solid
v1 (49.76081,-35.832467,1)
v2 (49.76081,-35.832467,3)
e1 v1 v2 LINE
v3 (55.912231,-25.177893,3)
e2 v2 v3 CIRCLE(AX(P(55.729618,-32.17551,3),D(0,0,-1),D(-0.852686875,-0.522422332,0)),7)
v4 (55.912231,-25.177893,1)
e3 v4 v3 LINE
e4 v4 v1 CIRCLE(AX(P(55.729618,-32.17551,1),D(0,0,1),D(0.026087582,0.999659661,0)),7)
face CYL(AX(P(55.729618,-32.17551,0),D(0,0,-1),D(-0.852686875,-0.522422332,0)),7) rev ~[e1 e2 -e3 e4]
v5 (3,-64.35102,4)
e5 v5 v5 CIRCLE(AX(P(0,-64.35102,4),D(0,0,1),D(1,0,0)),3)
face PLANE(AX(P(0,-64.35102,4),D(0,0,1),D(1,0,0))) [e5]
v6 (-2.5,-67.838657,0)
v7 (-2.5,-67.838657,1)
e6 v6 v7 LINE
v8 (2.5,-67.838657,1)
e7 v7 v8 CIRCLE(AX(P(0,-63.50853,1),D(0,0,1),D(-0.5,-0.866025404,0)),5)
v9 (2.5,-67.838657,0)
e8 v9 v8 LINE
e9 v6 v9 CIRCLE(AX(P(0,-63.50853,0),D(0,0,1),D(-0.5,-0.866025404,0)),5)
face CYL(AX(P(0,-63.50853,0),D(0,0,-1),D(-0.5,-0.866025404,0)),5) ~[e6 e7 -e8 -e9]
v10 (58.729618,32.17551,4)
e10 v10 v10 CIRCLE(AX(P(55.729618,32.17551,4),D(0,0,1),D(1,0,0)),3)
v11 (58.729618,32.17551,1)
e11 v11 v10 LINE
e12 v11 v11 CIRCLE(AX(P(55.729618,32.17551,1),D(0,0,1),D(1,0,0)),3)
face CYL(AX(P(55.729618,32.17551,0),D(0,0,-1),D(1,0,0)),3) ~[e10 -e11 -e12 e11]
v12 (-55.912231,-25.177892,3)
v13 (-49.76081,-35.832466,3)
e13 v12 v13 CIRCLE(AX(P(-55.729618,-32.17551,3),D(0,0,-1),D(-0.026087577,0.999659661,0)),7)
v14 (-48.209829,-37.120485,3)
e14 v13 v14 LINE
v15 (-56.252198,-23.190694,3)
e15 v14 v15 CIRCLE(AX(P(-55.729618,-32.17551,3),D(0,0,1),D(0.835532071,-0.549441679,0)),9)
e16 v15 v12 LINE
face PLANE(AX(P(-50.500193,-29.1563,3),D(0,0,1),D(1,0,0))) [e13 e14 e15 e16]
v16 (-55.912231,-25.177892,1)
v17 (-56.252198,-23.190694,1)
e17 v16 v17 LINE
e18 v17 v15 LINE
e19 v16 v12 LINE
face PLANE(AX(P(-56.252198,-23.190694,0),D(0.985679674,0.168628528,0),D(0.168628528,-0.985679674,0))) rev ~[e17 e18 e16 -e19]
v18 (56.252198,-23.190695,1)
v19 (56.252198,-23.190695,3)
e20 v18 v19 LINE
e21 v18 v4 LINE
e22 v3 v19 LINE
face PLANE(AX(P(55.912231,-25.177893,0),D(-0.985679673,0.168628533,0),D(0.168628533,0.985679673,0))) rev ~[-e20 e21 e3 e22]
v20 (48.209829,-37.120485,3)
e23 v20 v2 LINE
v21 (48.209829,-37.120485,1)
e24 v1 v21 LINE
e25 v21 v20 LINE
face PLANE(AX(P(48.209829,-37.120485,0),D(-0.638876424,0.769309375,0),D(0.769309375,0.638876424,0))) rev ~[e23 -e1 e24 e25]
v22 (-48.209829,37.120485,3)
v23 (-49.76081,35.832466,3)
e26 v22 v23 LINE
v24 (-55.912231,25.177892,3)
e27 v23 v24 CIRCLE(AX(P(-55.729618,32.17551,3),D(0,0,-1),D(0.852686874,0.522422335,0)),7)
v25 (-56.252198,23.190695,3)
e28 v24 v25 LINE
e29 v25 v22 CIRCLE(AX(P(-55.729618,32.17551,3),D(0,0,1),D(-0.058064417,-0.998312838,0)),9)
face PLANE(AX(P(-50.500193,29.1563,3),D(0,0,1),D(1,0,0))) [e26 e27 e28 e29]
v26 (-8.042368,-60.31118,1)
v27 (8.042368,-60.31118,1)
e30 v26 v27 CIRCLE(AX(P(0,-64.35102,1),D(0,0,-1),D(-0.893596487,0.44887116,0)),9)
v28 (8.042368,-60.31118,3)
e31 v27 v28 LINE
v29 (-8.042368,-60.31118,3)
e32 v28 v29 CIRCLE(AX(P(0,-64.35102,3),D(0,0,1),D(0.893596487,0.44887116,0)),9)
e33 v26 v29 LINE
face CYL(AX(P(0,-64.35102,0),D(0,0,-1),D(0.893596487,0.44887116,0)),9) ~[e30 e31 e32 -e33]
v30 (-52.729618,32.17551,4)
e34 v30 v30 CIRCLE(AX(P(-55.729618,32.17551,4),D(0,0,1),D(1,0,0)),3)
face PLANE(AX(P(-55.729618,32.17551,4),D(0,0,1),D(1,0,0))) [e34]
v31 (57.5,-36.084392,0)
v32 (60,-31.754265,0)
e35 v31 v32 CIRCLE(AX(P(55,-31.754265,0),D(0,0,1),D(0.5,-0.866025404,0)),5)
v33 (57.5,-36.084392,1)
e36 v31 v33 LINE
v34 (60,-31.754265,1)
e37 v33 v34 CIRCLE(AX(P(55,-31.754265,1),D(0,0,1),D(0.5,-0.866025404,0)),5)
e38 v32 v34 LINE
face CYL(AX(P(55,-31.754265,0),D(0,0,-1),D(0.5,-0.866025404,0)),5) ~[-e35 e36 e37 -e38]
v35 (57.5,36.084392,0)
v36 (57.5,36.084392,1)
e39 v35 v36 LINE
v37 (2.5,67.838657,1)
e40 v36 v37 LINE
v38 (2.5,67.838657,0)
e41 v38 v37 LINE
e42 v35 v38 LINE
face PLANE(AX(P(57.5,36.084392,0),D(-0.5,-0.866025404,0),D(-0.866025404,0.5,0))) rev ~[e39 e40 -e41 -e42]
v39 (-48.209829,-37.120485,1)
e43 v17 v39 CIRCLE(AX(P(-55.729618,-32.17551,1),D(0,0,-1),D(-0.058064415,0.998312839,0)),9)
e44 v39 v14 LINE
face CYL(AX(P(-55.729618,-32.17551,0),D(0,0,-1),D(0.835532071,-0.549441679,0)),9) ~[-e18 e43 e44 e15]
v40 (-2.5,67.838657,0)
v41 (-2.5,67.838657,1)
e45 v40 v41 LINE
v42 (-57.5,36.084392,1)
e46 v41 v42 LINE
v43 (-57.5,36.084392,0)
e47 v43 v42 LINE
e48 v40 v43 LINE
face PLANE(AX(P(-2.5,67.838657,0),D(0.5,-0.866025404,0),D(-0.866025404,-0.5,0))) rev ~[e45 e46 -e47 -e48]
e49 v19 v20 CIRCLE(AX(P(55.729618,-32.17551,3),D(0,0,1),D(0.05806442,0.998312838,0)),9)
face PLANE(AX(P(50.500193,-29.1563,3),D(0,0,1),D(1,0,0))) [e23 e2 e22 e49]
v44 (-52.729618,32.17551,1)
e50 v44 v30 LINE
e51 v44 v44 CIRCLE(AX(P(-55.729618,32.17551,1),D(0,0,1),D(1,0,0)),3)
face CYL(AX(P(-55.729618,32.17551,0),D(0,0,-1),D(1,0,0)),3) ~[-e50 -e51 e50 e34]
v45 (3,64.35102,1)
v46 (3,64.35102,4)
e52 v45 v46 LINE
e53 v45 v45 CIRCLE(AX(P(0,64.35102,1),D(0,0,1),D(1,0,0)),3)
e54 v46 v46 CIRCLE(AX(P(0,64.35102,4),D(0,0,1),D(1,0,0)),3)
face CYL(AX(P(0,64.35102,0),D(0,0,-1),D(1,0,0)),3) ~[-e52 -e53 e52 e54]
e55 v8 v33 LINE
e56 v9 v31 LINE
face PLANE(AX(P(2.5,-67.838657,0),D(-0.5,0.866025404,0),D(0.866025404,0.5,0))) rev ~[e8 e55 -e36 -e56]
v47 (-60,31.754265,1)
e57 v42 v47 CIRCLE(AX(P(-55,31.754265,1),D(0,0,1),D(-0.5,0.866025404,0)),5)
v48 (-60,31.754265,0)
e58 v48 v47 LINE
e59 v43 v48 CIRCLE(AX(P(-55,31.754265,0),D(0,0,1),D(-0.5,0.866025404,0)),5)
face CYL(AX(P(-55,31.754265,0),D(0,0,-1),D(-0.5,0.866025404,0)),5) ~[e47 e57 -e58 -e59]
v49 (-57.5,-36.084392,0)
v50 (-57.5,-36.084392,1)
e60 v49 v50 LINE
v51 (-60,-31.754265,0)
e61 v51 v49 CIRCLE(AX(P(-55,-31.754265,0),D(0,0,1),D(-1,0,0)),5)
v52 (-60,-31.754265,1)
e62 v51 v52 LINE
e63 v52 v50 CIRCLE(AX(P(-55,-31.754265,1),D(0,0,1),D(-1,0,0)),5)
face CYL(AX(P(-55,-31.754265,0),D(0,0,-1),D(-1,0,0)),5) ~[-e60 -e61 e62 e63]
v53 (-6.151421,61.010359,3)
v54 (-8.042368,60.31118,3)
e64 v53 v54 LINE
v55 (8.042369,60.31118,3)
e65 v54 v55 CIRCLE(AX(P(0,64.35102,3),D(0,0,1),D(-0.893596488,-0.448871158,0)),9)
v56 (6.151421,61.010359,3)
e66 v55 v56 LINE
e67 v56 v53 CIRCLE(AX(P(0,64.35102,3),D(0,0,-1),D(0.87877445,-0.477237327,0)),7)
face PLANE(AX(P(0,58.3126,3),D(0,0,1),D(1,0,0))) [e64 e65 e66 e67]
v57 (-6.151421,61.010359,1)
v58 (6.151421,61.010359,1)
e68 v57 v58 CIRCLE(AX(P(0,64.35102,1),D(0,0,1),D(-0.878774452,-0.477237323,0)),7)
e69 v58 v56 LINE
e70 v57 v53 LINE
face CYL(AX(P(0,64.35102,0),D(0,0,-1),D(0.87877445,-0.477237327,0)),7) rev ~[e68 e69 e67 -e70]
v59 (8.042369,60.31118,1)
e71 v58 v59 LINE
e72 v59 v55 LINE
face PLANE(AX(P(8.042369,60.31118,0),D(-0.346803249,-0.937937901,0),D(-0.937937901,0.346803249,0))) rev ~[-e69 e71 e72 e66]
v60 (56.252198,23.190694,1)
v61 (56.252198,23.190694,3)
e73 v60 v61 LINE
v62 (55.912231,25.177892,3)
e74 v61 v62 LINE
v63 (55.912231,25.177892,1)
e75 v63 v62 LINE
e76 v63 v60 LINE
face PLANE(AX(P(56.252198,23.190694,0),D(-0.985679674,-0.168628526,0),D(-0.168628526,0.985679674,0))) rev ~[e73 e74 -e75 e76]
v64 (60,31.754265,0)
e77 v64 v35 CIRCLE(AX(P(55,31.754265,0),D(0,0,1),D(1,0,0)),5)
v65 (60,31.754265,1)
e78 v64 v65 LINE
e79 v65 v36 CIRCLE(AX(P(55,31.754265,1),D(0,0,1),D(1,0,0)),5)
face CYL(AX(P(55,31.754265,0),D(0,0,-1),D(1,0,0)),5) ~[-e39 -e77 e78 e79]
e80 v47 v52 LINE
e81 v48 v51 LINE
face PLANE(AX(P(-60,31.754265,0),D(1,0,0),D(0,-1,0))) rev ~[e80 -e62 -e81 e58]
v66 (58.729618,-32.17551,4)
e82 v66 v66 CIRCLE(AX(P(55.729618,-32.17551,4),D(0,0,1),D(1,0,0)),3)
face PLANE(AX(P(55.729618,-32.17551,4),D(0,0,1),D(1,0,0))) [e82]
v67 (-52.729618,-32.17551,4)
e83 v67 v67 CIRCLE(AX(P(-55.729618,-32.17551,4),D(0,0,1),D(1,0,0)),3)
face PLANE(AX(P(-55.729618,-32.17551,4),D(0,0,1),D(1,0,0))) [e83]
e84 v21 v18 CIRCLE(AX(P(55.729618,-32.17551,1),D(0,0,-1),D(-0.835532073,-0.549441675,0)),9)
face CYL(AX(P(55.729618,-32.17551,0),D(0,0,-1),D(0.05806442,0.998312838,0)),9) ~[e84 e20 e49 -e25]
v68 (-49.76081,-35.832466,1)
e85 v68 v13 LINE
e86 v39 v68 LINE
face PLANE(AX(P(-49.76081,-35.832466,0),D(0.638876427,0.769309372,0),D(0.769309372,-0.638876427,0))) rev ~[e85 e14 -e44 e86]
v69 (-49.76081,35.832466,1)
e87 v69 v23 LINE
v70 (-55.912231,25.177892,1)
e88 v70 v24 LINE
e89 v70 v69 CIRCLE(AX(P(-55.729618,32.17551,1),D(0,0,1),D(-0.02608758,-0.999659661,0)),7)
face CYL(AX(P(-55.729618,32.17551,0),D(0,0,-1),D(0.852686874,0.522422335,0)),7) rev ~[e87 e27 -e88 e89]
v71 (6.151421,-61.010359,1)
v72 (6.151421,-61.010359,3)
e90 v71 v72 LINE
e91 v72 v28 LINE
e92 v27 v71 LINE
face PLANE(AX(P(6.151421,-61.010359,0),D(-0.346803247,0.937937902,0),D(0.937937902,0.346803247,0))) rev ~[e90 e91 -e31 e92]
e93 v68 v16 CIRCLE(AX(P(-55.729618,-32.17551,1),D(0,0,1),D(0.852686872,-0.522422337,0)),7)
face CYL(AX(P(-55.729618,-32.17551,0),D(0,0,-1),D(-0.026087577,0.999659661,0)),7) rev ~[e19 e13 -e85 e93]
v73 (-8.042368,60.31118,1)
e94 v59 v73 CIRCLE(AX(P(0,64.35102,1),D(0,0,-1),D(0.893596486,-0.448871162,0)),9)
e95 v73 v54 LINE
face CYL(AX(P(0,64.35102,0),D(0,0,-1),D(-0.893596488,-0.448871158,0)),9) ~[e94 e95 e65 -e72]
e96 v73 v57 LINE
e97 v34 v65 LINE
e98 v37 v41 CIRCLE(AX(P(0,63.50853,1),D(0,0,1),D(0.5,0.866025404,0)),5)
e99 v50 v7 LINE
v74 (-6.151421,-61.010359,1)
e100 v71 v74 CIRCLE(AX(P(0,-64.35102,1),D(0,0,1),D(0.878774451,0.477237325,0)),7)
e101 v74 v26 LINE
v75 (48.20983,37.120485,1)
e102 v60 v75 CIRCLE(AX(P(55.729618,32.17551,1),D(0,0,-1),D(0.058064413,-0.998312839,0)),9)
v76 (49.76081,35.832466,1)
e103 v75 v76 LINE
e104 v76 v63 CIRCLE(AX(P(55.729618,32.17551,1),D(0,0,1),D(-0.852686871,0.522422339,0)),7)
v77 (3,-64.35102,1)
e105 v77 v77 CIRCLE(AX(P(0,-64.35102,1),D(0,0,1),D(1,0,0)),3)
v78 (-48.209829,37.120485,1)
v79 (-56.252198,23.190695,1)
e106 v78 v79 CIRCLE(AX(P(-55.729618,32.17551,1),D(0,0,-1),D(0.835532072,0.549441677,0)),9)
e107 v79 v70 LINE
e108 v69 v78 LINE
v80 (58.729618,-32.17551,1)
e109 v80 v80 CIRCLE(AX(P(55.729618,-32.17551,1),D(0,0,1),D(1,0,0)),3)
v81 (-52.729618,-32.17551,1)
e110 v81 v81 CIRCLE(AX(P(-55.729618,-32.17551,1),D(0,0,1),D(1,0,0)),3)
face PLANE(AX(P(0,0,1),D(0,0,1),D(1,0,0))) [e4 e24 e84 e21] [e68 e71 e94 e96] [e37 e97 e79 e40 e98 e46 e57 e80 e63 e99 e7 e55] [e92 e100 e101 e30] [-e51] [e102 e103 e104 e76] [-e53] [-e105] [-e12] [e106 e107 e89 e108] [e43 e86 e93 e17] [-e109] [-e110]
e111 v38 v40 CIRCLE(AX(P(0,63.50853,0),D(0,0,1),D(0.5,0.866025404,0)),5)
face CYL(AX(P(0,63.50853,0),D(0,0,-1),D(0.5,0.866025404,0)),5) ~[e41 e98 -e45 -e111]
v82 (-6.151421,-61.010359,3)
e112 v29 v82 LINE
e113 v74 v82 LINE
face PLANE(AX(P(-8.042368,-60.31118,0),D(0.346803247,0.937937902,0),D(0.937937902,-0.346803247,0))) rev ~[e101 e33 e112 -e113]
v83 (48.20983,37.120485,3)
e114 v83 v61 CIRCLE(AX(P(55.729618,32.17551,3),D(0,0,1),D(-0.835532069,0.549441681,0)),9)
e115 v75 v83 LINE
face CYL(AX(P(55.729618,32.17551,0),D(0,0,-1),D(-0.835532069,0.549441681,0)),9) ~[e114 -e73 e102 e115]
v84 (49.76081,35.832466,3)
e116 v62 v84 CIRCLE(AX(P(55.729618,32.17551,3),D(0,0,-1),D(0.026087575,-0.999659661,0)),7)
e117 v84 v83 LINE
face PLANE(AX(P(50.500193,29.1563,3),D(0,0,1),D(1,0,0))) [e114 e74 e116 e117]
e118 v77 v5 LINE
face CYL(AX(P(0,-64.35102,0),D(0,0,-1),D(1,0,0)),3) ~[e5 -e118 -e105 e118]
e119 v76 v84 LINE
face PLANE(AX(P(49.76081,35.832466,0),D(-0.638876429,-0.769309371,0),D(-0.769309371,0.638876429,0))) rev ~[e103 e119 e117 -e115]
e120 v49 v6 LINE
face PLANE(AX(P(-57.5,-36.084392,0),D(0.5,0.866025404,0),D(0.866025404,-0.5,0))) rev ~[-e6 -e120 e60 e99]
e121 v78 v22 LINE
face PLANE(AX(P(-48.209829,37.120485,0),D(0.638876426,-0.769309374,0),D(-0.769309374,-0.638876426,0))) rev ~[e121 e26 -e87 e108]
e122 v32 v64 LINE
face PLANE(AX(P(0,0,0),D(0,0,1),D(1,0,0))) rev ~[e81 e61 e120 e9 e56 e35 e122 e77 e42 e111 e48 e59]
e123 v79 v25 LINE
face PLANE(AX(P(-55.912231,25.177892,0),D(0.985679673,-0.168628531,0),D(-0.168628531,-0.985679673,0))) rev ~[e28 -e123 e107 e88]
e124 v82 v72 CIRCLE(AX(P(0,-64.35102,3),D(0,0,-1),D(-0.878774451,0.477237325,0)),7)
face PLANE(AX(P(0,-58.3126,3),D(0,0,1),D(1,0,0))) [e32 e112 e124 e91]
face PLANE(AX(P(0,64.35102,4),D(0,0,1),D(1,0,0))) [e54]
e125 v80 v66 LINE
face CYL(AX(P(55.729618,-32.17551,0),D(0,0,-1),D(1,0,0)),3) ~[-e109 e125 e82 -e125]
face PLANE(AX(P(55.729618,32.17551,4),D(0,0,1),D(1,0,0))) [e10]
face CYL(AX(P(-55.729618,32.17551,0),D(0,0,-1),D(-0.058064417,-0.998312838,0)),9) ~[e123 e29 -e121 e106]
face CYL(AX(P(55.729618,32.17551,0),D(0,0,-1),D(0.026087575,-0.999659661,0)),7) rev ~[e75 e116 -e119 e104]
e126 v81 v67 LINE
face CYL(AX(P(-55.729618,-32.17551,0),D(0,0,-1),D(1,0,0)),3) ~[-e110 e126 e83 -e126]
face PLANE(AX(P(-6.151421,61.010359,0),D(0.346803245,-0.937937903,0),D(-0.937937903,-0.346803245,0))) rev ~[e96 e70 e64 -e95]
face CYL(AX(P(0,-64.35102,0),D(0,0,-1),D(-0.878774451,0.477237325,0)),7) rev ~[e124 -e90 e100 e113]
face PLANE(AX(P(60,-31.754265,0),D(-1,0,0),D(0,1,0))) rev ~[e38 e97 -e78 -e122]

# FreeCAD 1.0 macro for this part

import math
import FreeCAD as App
import Part
import Sketcher
from FreeCAD import Vector
Q = App.Units.Quantity

doc = App.newDocument("Part")
body = doc.addObject("PartDesign::Body", "Body")

# Sketch on XY plane
sketch1 = body.newObject("Sketcher::SketchObject", "Sketch")
sketch1.AttachmentSupport = (doc.getObject("XY_Plane"), [""])
sketch1.MapMode = "FlatFace"
sketch1.addGeometry(Part.LineSegment(Vector(60, -31.754265, 0), Vector(60, 31.754265, 0)), False)
sketch1.addGeometry(Part.ArcOfCircle(Part.Circle(Vector(55, 31.754265, 0), Vector(0, 0, 1), 5), math.radians(0), math.radians(60)), False)
sketch1.addGeometry(Part.LineSegment(Vector(57.5, 36.084392, 0), Vector(2.5, 67.838657, 0)), False)
sketch1.addGeometry(Part.ArcOfCircle(Part.Circle(Vector(0, 63.50853, 0), Vector(0, 0, 1), 5), math.radians(60), math.radians(120)), False)
sketch1.addGeometry(Part.LineSegment(Vector(-2.5, 67.838657, 0), Vector(-57.5, 36.084392, 0)), False)
sketch1.addGeometry(Part.ArcOfCircle(Part.Circle(Vector(-55, 31.754265, 0), Vector(0, 0, 1), 5), math.radians(120), math.radians(180)), False)
sketch1.addGeometry(Part.LineSegment(Vector(-60, 31.754265, 0), Vector(-60, -31.754265, 0)), False)
sketch1.addGeometry(Part.ArcOfCircle(Part.Circle(Vector(-55, -31.754265, 0), Vector(0, 0, 1), 5), math.radians(180), math.radians(240)), False)
sketch1.addGeometry(Part.LineSegment(Vector(-57.5, -36.084392, 0), Vector(-2.5, -67.838657, 0)), False)
sketch1.addGeometry(Part.ArcOfCircle(Part.Circle(Vector(0, -63.50853, 0), Vector(0, 0, 1), 5), math.radians(-120), math.radians(-60)), False)
sketch1.addGeometry(Part.LineSegment(Vector(2.5, -67.838657, 0), Vector(57.5, -36.084392, 0)), False)
sketch1.addGeometry(Part.ArcOfCircle(Part.Circle(Vector(55, -31.754265, 0), Vector(0, 0, 1), 5), math.radians(-60), math.radians(0)), False)
sketch1.addGeometry(Part.Circle(Vector(0, -64.35102, 0), Vector(0, 0, 1), 3), False)
sketch1.addGeometry(Part.ArcOfCircle(Part.Circle(Vector(0, -64.35102, 0), Vector(0, 0, 1), 9), math.radians(26.671282), math.radians(153.328718)), False)
sketch1.addGeometry(Part.LineSegment(Vector(8.042368, -60.31118, 0), Vector(6.151421, -61.010359, 0)), False)
sketch1.addGeometry(Part.ArcOfCircle(Part.Circle(Vector(0, -64.35102, 0), Vector(0, 0, 1), 7), math.radians(28.505122), math.radians(151.494878)), False)
sketch1.addGeometry(Part.LineSegment(Vector(-6.151421, -61.010359, 0), Vector(-8.042368, -60.31118, 0)), False)
sketch1.addGeometry(Part.Circle(Vector(-55.729618, -32.17551, 0), Vector(0, 0, 1), 3), False)
sketch1.addGeometry(Part.ArcOfCircle(Part.Circle(Vector(-55.729618, -32.17551, 0), Vector(0, 0, 1), 9), math.radians(-33.328718), math.radians(93.328718)), False)
sketch1.addGeometry(Part.LineSegment(Vector(-48.209829, -37.120485, 0), Vector(-49.76081, -35.832466, 0)), False)
sketch1.addGeometry(Part.ArcOfCircle(Part.Circle(Vector(-55.729618, -32.17551, 0), Vector(0, 0, 1), 7), math.radians(-31.494878), math.radians(91.494878)), False)
sketch1.addGeometry(Part.LineSegment(Vector(-55.912231, -25.177892, 0), Vector(-56.252198, -23.190694, 0)), False)
sketch1.addGeometry(Part.ArcOfCircle(Part.Circle(Vector(55.729618, -32.17551, 0), Vector(0, 0, 1), 9), math.radians(86.671282), math.radians(213.328718)), False)
sketch1.addGeometry(Part.LineSegment(Vector(56.252198, -23.190695, 0), Vector(55.912231, -25.177893, 0)), False)
sketch1.addGeometry(Part.ArcOfCircle(Part.Circle(Vector(55.729618, -32.17551, 0), Vector(0, 0, 1), 7), math.radians(88.505122), math.radians(211.494877)), False)
sketch1.addGeometry(Part.LineSegment(Vector(49.76081, -35.832467, 0), Vector(48.209829, -37.120485, 0)), False)
sketch1.addGeometry(Part.Circle(Vector(55.729618, -32.17551, 0), Vector(0, 0, 1), 3), False)
sketch1.addGeometry(Part.Circle(Vector(-55.729618, 32.17551, 0), Vector(0, 0, 1), 3), False)
sketch1.addGeometry(Part.ArcOfCircle(Part.Circle(Vector(-55.729618, 32.17551, 0), Vector(0, 0, 1), 9), math.radians(-93.328718), math.radians(33.328718)), False)
sketch1.addGeometry(Part.LineSegment(Vector(-56.252198, 23.190695, 0), Vector(-55.912231, 25.177892, 0)), False)
sketch1.addGeometry(Part.ArcOfCircle(Part.Circle(Vector(-55.729618, 32.17551, 0), Vector(0, 0, 1), 7), math.radians(-91.494878), math.radians(31.494878)), False)
sketch1.addGeometry(Part.LineSegment(Vector(-49.76081, 35.832466, 0), Vector(-48.209829, 37.120485, 0)), False)
sketch1.addGeometry(Part.ArcOfCircle(Part.Circle(Vector(55.729618, 32.17551, 0), Vector(0, 0, 1), 9), math.radians(146.671282), math.radians(273.328718)), False)
sketch1.addGeometry(Part.LineSegment(Vector(48.20983, 37.120485, 0), Vector(49.76081, 35.832466, 0)), False)
sketch1.addGeometry(Part.ArcOfCircle(Part.Circle(Vector(55.729618, 32.17551, 0), Vector(0, 0, 1), 7), math.radians(148.505122), math.radians(271.494878)), False)
sketch1.addGeometry(Part.LineSegment(Vector(55.912231, 25.177892, 0), Vector(56.252198, 23.190694, 0)), False)
sketch1.addGeometry(Part.Circle(Vector(55.729618, 32.17551, 0), Vector(0, 0, 1), 3), False)
sketch1.addGeometry(Part.ArcOfCircle(Part.Circle(Vector(0, 64.35102, 0), Vector(0, 0, 1), 9), math.radians(-153.328718), math.radians(-26.671282)), False)
sketch1.addGeometry(Part.LineSegment(Vector(-8.042368, 60.31118, 0), Vector(-6.151421, 61.010359, 0)), False)
sketch1.addGeometry(Part.ArcOfCircle(Part.Circle(Vector(0, 64.35102, 0), Vector(0, 0, 1), 7), math.radians(-151.494878), math.radians(-28.505122)), False)
sketch1.addGeometry(Part.LineSegment(Vector(6.151421, 61.010359, 0), Vector(8.042369, 60.31118, 0)), False)
sketch1.addGeometry(Part.Circle(Vector(0, 64.35102, 0), Vector(0, 0, 1), 3), False)
sketch1.addConstraint(Sketcher.Constraint("Tangent", 0, 2, 1, 1))
sketch1.addConstraint(Sketcher.Constraint("Tangent", 1, 2, 2, 1))
sketch1.addConstraint(Sketcher.Constraint("Tangent", 2, 2, 3, 1))
sketch1.addConstraint(Sketcher.Constraint("Tangent", 3, 2, 4, 1))
sketch1.addConstraint(Sketcher.Constraint("Tangent", 4, 2, 5, 1))
sketch1.addConstraint(Sketcher.Constraint("Tangent", 5, 2, 6, 1))
sketch1.addConstraint(Sketcher.Constraint("Tangent", 6, 2, 7, 1))
sketch1.addConstraint(Sketcher.Constraint("Tangent", 7, 2, 8, 1))
sketch1.addConstraint(Sketcher.Constraint("Tangent", 8, 2, 9, 1))
sketch1.addConstraint(Sketcher.Constraint("Tangent", 9, 2, 10, 1))
sketch1.addConstraint(Sketcher.Constraint("Tangent", 10, 2, 11, 1))
sketch1.addConstraint(Sketcher.Constraint("Tangent", 11, 2, 0, 1))
sketch1.addConstraint(Sketcher.Constraint("Coincident", 13, 1, 14, 1))
sketch1.addConstraint(Sketcher.Constraint("Coincident", 14, 2, 15, 1))
sketch1.addConstraint(Sketcher.Constraint("Coincident", 15, 2, 16, 1))
sketch1.addConstraint(Sketcher.Constraint("Coincident", 16, 2, 13, 2))
sketch1.addConstraint(Sketcher.Constraint("Coincident", 18, 1, 19, 1))
sketch1.addConstraint(Sketcher.Constraint("Coincident", 19, 2, 20, 1))
sketch1.addConstraint(Sketcher.Constraint("Coincident", 20, 2, 21, 1))
sketch1.addConstraint(Sketcher.Constraint("Coincident", 21, 2, 18, 2))
sketch1.addConstraint(Sketcher.Constraint("Coincident", 22, 1, 23, 1))
sketch1.addConstraint(Sketcher.Constraint("Coincident", 23, 2, 24, 1))
sketch1.addConstraint(Sketcher.Constraint("Coincident", 24, 2, 25, 1))
sketch1.addConstraint(Sketcher.Constraint("Coincident", 25, 2, 22, 2))
sketch1.addConstraint(Sketcher.Constraint("Coincident", 28, 1, 29, 1))
sketch1.addConstraint(Sketcher.Constraint("Coincident", 29, 2, 30, 1))
sketch1.addConstraint(Sketcher.Constraint("Coincident", 30, 2, 31, 1))
sketch1.addConstraint(Sketcher.Constraint("Coincident", 31, 2, 28, 2))
sketch1.addConstraint(Sketcher.Constraint("Coincident", 32, 1, 33, 1))
sketch1.addConstraint(Sketcher.Constraint("Coincident", 33, 2, 34, 1))
sketch1.addConstraint(Sketcher.Constraint("Coincident", 34, 2, 35, 1))
sketch1.addConstraint(Sketcher.Constraint("Coincident", 35, 2, 32, 2))
sketch1.addConstraint(Sketcher.Constraint("Coincident", 37, 1, 38, 1))
sketch1.addConstraint(Sketcher.Constraint("Coincident", 38, 2, 39, 1))
sketch1.addConstraint(Sketcher.Constraint("Coincident", 39, 2, 40, 1))
sketch1.addConstraint(Sketcher.Constraint("Coincident", 40, 2, 37, 2))
sketch1.addConstraint(Sketcher.Constraint("Vertical", 0))
sketch1.addConstraint(Sketcher.Constraint("Vertical", 6))
sketch1.addConstraint(Sketcher.Constraint("Coincident", 13, 3, 12, 3))
sketch1.addConstraint(Sketcher.Constraint("Coincident", 15, 3, 12, 3))
sketch1.addConstraint(Sketcher.Constraint("Coincident", 18, 3, 17, 3))
sketch1.addConstraint(Sketcher.Constraint("Coincident", 20, 3, 17, 3))
sketch1.addConstraint(Sketcher.Constraint("Coincident", 24, 3, 22, 3))
sketch1.addConstraint(Sketcher.Constraint("Coincident", 26, 3, 22, 3))
sketch1.addConstraint(Sketcher.Constraint("Coincident", 28, 3, 27, 3))
sketch1.addConstraint(Sketcher.Constraint("Coincident", 30, 3, 27, 3))
sketch1.addConstraint(Sketcher.Constraint("Coincident", 34, 3, 32, 3))
sketch1.addConstraint(Sketcher.Constraint("Coincident", 36, 3, 32, 3))
sketch1.addConstraint(Sketcher.Constraint("Coincident", 39, 3, 37, 3))
sketch1.addConstraint(Sketcher.Constraint("Coincident", 41, 3, 37, 3))
sketch1.addConstraint(Sketcher.Constraint("Equal", 1, 3))
sketch1.addConstraint(Sketcher.Constraint("Equal", 3, 5))
sketch1.addConstraint(Sketcher.Constraint("Equal", 5, 7))
sketch1.addConstraint(Sketcher.Constraint("Equal", 7, 9))
sketch1.addConstraint(Sketcher.Constraint("Equal", 9, 11))
sketch1.addConstraint(Sketcher.Constraint("Equal", 12, 17))
sketch1.addConstraint(Sketcher.Constraint("Equal", 13, 18))
sketch1.addConstraint(Sketcher.Constraint("Equal", 15, 20))
sketch1.addConstraint(Sketcher.Constraint("Equal", 18, 22))
sketch1.addConstraint(Sketcher.Constraint("Equal", 20, 24))
sketch1.addConstraint(Sketcher.Constraint("Equal", 17, 26))
sketch1.addConstraint(Sketcher.Constraint("Equal", 26, 27))
sketch1.addConstraint(Sketcher.Constraint("Equal", 22, 28))
sketch1.addConstraint(Sketcher.Constraint("Equal", 24, 30))
sketch1.addConstraint(Sketcher.Constraint("Equal", 28, 32))
sketch1.addConstraint(Sketcher.Constraint("Equal", 30, 34))
sketch1.addConstraint(Sketcher.Constraint("Equal", 27, 36))
sketch1.addConstraint(Sketcher.Constraint("Equal", 32, 37))
sketch1.addConstraint(Sketcher.Constraint("Equal", 34, 39))
sketch1.addConstraint(Sketcher.Constraint("Equal", 36, 41))
sketch1.addConstraint(Sketcher.Constraint("Symmetric", 1, 3, 7, 3, -1, 1))
sketch1.addConstraint(Sketcher.Constraint("Symmetric", 3, 3, 9, 3, -1, 1))
sketch1.addConstraint(Sketcher.Constraint("Symmetric", 22, 3, 27, 3, -1, 1))
sketch1.addConstraint(Sketcher.Constraint("Symmetric", 17, 3, 32, 3, -1, 1))
sketch1.addConstraint(Sketcher.Constraint("Symmetric", 12, 3, 37, 3, -1, 1))
sketch1.addConstraint(Sketcher.Constraint("Symmetric", 17, 3, 22, 3, -2))
sketch1.addConstraint(Sketcher.Constraint("Symmetric", 2, 2, 3, 2, -2))
sketch1.addConstraint(Sketcher.Constraint("Symmetric", 14, 2, 15, 2, -2))
sketch1.addConstraint(Sketcher.Constraint("Parallel", 4, 10))
sketch1.addConstraint(Sketcher.Constraint("Parallel", 23, 29))
sketch1.addConstraint(Sketcher.Constraint("Parallel", 25, 31))
sketch1.addConstraint(Sketcher.Constraint("Parallel", 19, 33))
sketch1.addConstraint(Sketcher.Constraint("Parallel", 21, 35))
sketch1.addConstraint(Sketcher.Constraint("Parallel", 14, 38))
sketch1.addConstraint(Sketcher.Constraint("Parallel", 16, 40))
sketch1.addConstraint(Sketcher.Constraint("Horizontal", 13, 1, 16, 2))
sketch1.addConstraint(Sketcher.Constraint("Horizontal", 21, 2, 22, 1))
sketch1.addConstraint(Sketcher.Constraint("Horizontal", 20, 2, 23, 2))
sketch1.addConstraint(Sketcher.Constraint("Horizontal", 19, 2, 24, 2))
sketch1.addConstraint(Sketcher.Constraint("Horizontal", 18, 1, 25, 2))
sketch1.addConstraint(Sketcher.Constraint("Horizontal", 31, 2, 32, 1))
sketch1.addConstraint(Sketcher.Constraint("Horizontal", 29, 2, 34, 2))
sketch1.addConstraint(Sketcher.Constraint("Horizontal", 38, 2, 39, 2))
sketch1.addConstraint(Sketcher.Constraint("Vertical", 21, 2, 28, 1))
sketch1.addConstraint(Sketcher.Constraint("Vertical", 19, 2, 30, 2))
sketch1.addConstraint(Sketcher.Constraint("Vertical", 16, 2, 37, 1))
sketch1.addConstraint(Sketcher.Constraint("Equal", 16, 19))
sketch1.addConstraint(Sketcher.Constraint("Equal", 19, 21))
sketch1.addConstraint(Sketcher.Constraint("Diameter", 12, 6.0))
sketch1.addConstraint(Sketcher.Constraint("Radius", 1, 5.0))
sketch1.addConstraint(Sketcher.Constraint("Radius", 13, 9.0))
sketch1.addConstraint(Sketcher.Constraint("Radius", 15, 7.0))
sketch1.addConstraint(Sketcher.Constraint("Angle", 2, Q("150 deg")))
sketch1.addConstraint(Sketcher.Constraint("DistanceX", -1, 1, 1, 3, 55.0))
sketch1.addConstraint(Sketcher.Constraint("DistanceY", 0, 1, 0, 2, 63.50853))
sketch1.addConstraint(Sketcher.Constraint("DistanceY", 19, 2, 7, 3, 4.078202))
sketch1.addConstraint(Sketcher.Constraint("Distance", 14, 2.016069))
sketch1.addConstraint(Sketcher.Constraint("DistanceY", 12, 3, -1, 1, 64.35102))
sketch1.addConstraint(Sketcher.Constraint("DistanceX", 17, 3, -1, 1, 55.729618))
sketch1.addConstraint(Sketcher.Constraint("DistanceY", 17, 3, -1, 1, 32.17551))
sketch1.addConstraint(Sketcher.Constraint("DistanceX", -1, 1, 13, 1, 8.042368))
sketch1.addConstraint(Sketcher.Constraint("DistanceX", 20, 2, -1, 1, 55.912231))
pad1 = body.newObject("PartDesign::Pad", "Pad")
pad1.Profile = sketch1
pad1.Length = 1

# Sketch on XY plane
sketch2 = body.newObject("Sketcher::SketchObject", "Sketch001")
sketch2.AttachmentSupport = (doc.getObject("XY_Plane"), [""])
sketch2.MapMode = "FlatFace"
sketch2.addGeometry(Part.ArcOfCircle(Part.Circle(Vector(0, -64.35102, 0), Vector(0, 0, 1), 7), math.radians(28.505122), math.radians(151.494878)), False)
sketch2.addGeometry(Part.LineSegment(Vector(6.151421, -61.010359, 0), Vector(8.042368, -60.31118, 0)), False)
sketch2.addGeometry(Part.ArcOfCircle(Part.Circle(Vector(0, -64.35102, 0), Vector(0, 0, 1), 9), math.radians(26.671282), math.radians(153.328718)), False)
sketch2.addGeometry(Part.LineSegment(Vector(-8.042368, -60.31118, 0), Vector(-6.151421, -61.010359, 0)), False)
sketch2.addGeometry(Part.ArcOfCircle(Part.Circle(Vector(-55.729618, -32.17551, 0), Vector(0, 0, 1), 7), math.radians(-31.494878), math.radians(91.494878)), False)
sketch2.addGeometry(Part.LineSegment(Vector(-49.76081, -35.832466, 0), Vector(-48.209829, -37.120485, 0)), False)
sketch2.addGeometry(Part.ArcOfCircle(Part.Circle(Vector(-55.729618, -32.17551, 0), Vector(0, 0, 1), 9), math.radians(-33.328718), math.radians(93.328718)), False)
sketch2.addGeometry(Part.LineSegment(Vector(-56.252198, -23.190694, 0), Vector(-55.912231, -25.177892, 0)), False)
sketch2.addGeometry(Part.ArcOfCircle(Part.Circle(Vector(55.729618, -32.17551, 0), Vector(0, 0, 1), 7), math.radians(88.505122), math.radians(211.494877)), False)
sketch2.addGeometry(Part.LineSegment(Vector(55.912231, -25.177893, 0), Vector(56.252198, -23.190695, 0)), False)
sketch2.addGeometry(Part.ArcOfCircle(Part.Circle(Vector(55.729618, -32.17551, 0), Vector(0, 0, 1), 9), math.radians(86.671282), math.radians(213.328718)), False)
sketch2.addGeometry(Part.LineSegment(Vector(48.209829, -37.120485, 0), Vector(49.76081, -35.832467, 0)), False)
sketch2.addGeometry(Part.ArcOfCircle(Part.Circle(Vector(-55.729618, 32.17551, 0), Vector(0, 0, 1), 7), math.radians(-91.494878), math.radians(31.494878)), False)
sketch2.addGeometry(Part.LineSegment(Vector(-55.912231, 25.177892, 0), Vector(-56.252198, 23.190695, 0)), False)
sketch2.addGeometry(Part.ArcOfCircle(Part.Circle(Vector(-55.729618, 32.17551, 0), Vector(0, 0, 1), 9), math.radians(-93.328718), math.radians(33.328718)), False)
sketch2.addGeometry(Part.LineSegment(Vector(-48.209829, 37.120485, 0), Vector(-49.76081, 35.832466, 0)), False)
sketch2.addGeometry(Part.ArcOfCircle(Part.Circle(Vector(0, 64.35102, 0), Vector(0, 0, 1), 7), math.radians(-151.494878), math.radians(-28.505122)), False)
sketch2.addGeometry(Part.LineSegment(Vector(-6.151421, 61.010359, 0), Vector(-8.042368, 60.31118, 0)), False)
sketch2.addGeometry(Part.ArcOfCircle(Part.Circle(Vector(0, 64.35102, 0), Vector(0, 0, 1), 9), math.radians(-153.328718), math.radians(-26.671282)), False)
sketch2.addGeometry(Part.LineSegment(Vector(8.042369, 60.31118, 0), Vector(6.151421, 61.010359, 0)), False)
sketch2.addGeometry(Part.ArcOfCircle(Part.Circle(Vector(55.729618, 32.17551, 0), Vector(0, 0, 1), 7), math.radians(148.505122), math.radians(271.494878)), False)
sketch2.addGeometry(Part.LineSegment(Vector(49.76081, 35.832466, 0), Vector(48.20983, 37.120485, 0)), False)
sketch2.addGeometry(Part.ArcOfCircle(Part.Circle(Vector(55.729618, 32.17551, 0), Vector(0, 0, 1), 9), math.radians(146.671282), math.radians(273.328718)), False)
sketch2.addGeometry(Part.LineSegment(Vector(56.252198, 23.190694, 0), Vector(55.912231, 25.177892, 0)), False)
sketch2.addConstraint(Sketcher.Constraint("Coincident", 0, 1, 1, 1))
sketch2.addConstraint(Sketcher.Constraint("Coincident", 1, 2, 2, 1))
sketch2.addConstraint(Sketcher.Constraint("Coincident", 2, 2, 3, 1))
sketch2.addConstraint(Sketcher.Constraint("Coincident", 3, 2, 0, 2))
sketch2.addConstraint(Sketcher.Constraint("Coincident", 4, 1, 5, 1))
sketch2.addConstraint(Sketcher.Constraint("Coincident", 5, 2, 6, 1))
sketch2.addConstraint(Sketcher.Constraint("Coincident", 6, 2, 7, 1))
sketch2.addConstraint(Sketcher.Constraint("Coincident", 7, 2, 4, 2))
sketch2.addConstraint(Sketcher.Constraint("Coincident", 8, 1, 9, 1))
sketch2.addConstraint(Sketcher.Constraint("Coincident", 9, 2, 10, 1))
sketch2.addConstraint(Sketcher.Constraint("Coincident", 10, 2, 11, 1))
sketch2.addConstraint(Sketcher.Constraint("Coincident", 11, 2, 8, 2))
sketch2.addConstraint(Sketcher.Constraint("Coincident", 12, 1, 13, 1))
sketch2.addConstraint(Sketcher.Constraint("Coincident", 13, 2, 14, 1))
sketch2.addConstraint(Sketcher.Constraint("Coincident", 14, 2, 15, 1))
sketch2.addConstraint(Sketcher.Constraint("Coincident", 15, 2, 12, 2))
sketch2.addConstraint(Sketcher.Constraint("Coincident", 16, 1, 17, 1))
sketch2.addConstraint(Sketcher.Constraint("Coincident", 17, 2, 18, 1))
sketch2.addConstraint(Sketcher.Constraint("Coincident", 18, 2, 19, 1))
sketch2.addConstraint(Sketcher.Constraint("Coincident", 19, 2, 16, 2))
sketch2.addConstraint(Sketcher.Constraint("Coincident", 20, 1, 21, 1))
sketch2.addConstraint(Sketcher.Constraint("Coincident", 21, 2, 22, 1))
sketch2.addConstraint(Sketcher.Constraint("Coincident", 22, 2, 23, 1))
sketch2.addConstraint(Sketcher.Constraint("Coincident", 23, 2, 20, 2))
sketch2.addConstraint(Sketcher.Constraint("Coincident", 2, 3, 0, 3))
sketch2.addConstraint(Sketcher.Constraint("Coincident", 6, 3, 4, 3))
sketch2.addConstraint(Sketcher.Constraint("Coincident", 10, 3, 8, 3))
sketch2.addConstraint(Sketcher.Constraint("Coincident", 14, 3, 12, 3))
sketch2.addConstraint(Sketcher.Constraint("Coincident", 18, 3, 16, 3))
sketch2.addConstraint(Sketcher.Constraint("Coincident", 22, 3, 20, 3))
sketch2.addConstraint(Sketcher.Constraint("Equal", 0, 4))
sketch2.addConstraint(Sketcher.Constraint("Equal", 2, 6))
sketch2.addConstraint(Sketcher.Constraint("Equal", 4, 8))
sketch2.addConstraint(Sketcher.Constraint("Equal", 6, 10))
sketch2.addConstraint(Sketcher.Constraint("Equal", 8, 12))
sketch2.addConstraint(Sketcher.Constraint("Equal", 10, 14))
sketch2.addConstraint(Sketcher.Constraint("Equal", 12, 16))
sketch2.addConstraint(Sketcher.Constraint("Equal", 14, 18))
sketch2.addConstraint(Sketcher.Constraint("Equal", 16, 20))
sketch2.addConstraint(Sketcher.Constraint("Equal", 18, 22))
sketch2.addConstraint(Sketcher.Constraint("Symmetric", 8, 3, 12, 3, -1, 1))
sketch2.addConstraint(Sketcher.Constraint("Symmetric", 0, 3, 16, 3, -1, 1))
sketch2.addConstraint(Sketcher.Constraint("Symmetric", 4, 3, 20, 3, -1, 1))
sketch2.addConstraint(Sketcher.Constraint("Symmetric", 4, 3, 8, 3, -2))
sketch2.addConstraint(Sketcher.Constraint("Symmetric", 1, 2, 2, 2, -2))
sketch2.addConstraint(Sketcher.Constraint("Parallel", 9, 13))
sketch2.addConstraint(Sketcher.Constraint("Parallel", 11, 15))
sketch2.addConstraint(Sketcher.Constraint("Parallel", 1, 17))
sketch2.addConstraint(Sketcher.Constraint("Parallel", 3, 19))
sketch2.addConstraint(Sketcher.Constraint("Parallel", 5, 21))
sketch2.addConstraint(Sketcher.Constraint("Parallel", 7, 23))
sketch2.addConstraint(Sketcher.Constraint("Horizontal", 0, 1, 3, 2))
sketch2.addConstraint(Sketcher.Constraint("Horizontal", 7, 2, 8, 1))
sketch2.addConstraint(Sketcher.Constraint("Horizontal", 6, 2, 9, 2))
sketch2.addConstraint(Sketcher.Constraint("Horizontal", 5, 2, 10, 2))
sketch2.addConstraint(Sketcher.Constraint("Horizontal", 4, 1, 11, 2))
sketch2.addConstraint(Sketcher.Constraint("Horizontal", 17, 2, 18, 2))
sketch2.addConstraint(Sketcher.Constraint("Horizontal", 15, 2, 20, 1))
sketch2.addConstraint(Sketcher.Constraint("Horizontal", 13, 2, 22, 2))
sketch2.addConstraint(Sketcher.Constraint("Vertical", 7, 2, 12, 1))
sketch2.addConstraint(Sketcher.Constraint("Vertical", 5, 2, 14, 2))
sketch2.addConstraint(Sketcher.Constraint("Vertical", 3, 2, 16, 1))
sketch2.addConstraint(Sketcher.Constraint("Equal", 3, 5))
sketch2.addConstraint(Sketcher.Constraint("Equal", 5, 7))
sketch2.addConstraint(Sketcher.Constraint("Radius", 0, 7.0))
sketch2.addConstraint(Sketcher.Constraint("Radius", 2, 9.0))
sketch2.addConstraint(Sketcher.Constraint("DistanceX", 7, 2, 5, 2, 7.702402))
sketch2.addConstraint(Sketcher.Constraint("Distance", 1, 2.016069))
sketch2.addConstraint(Sketcher.Constraint("DistanceY", 0, 3, -1, 1, 64.35102))
sketch2.addConstraint(Sketcher.Constraint("DistanceX", 4, 3, -1, 1, 55.729618))
sketch2.addConstraint(Sketcher.Constraint("DistanceY", 4, 3, -1, 1, 32.17551))
sketch2.addConstraint(Sketcher.Constraint("DistanceX", -1, 1, 0, 1, 6.151421))
sketch2.addConstraint(Sketcher.Constraint("DistanceX", 4, 1, -1, 1, 49.76081))
pad2 = body.newObject("PartDesign::Pad", "Pad001")
pad2.Profile = sketch2
pad2.Length = 3

# Sketch on XY plane
sketch3 = body.newObject("Sketcher::SketchObject", "Sketch002")
sketch3.AttachmentSupport = (doc.getObject("XY_Plane"), [""])
sketch3.MapMode = "FlatFace"
sketch3.addGeometry(Part.Circle(Vector(-55.729618, -32.17551, 0), Vector(0, 0, 1), 3), False)
sketch3.addGeometry(Part.Circle(Vector(0, -64.35102, 0), Vector(0, 0, 1), 3), False)
sketch3.addGeometry(Part.Circle(Vector(55.729618, -32.17551, 0), Vector(0, 0, 1), 3), False)
sketch3.addGeometry(Part.Circle(Vector(55.729618, 32.17551, 0), Vector(0, 0, 1), 3), False)
sketch3.addGeometry(Part.Circle(Vector(0, 64.35102, 0), Vector(0, 0, 1), 3), False)
sketch3.addGeometry(Part.Circle(Vector(-55.729618, 32.17551, 0), Vector(0, 0, 1), 3), False)
sketch3.addConstraint(Sketcher.Constraint("Equal", 0, 1))
sketch3.addConstraint(Sketcher.Constraint("Equal", 1, 2))
sketch3.addConstraint(Sketcher.Constraint("Equal", 2, 3))
sketch3.addConstraint(Sketcher.Constraint("Equal", 3, 4))
sketch3.addConstraint(Sketcher.Constraint("Equal", 4, 5))
sketch3.addConstraint(Sketcher.Constraint("Symmetric", 0, 3, 3, 3, -1, 1))
sketch3.addConstraint(Sketcher.Constraint("Symmetric", 1, 3, 4, 3, -1, 1))
sketch3.addConstraint(Sketcher.Constraint("Symmetric", 2, 3, 5, 3, -1, 1))
sketch3.addConstraint(Sketcher.Constraint("Symmetric", 0, 3, 2, 3, -2))
sketch3.addConstraint(Sketcher.Constraint("PointOnObject", 1, 3, -2))
sketch3.addConstraint(Sketcher.Constraint("Diameter", 0, 6.0))
sketch3.addConstraint(Sketcher.Constraint("DistanceX", 0, 3, -1, 1, 55.729618))
sketch3.addConstraint(Sketcher.Constraint("DistanceY", 0, 3, -1, 1, 32.17551))
sketch3.addConstraint(Sketcher.Constraint("DistanceY", 1, 3, -1, 1, 64.35102))
pad3 = body.newObject("PartDesign::Pad", "Pad002")
pad3.Profile = sketch3
pad3.Length = 4

doc.recompute()
